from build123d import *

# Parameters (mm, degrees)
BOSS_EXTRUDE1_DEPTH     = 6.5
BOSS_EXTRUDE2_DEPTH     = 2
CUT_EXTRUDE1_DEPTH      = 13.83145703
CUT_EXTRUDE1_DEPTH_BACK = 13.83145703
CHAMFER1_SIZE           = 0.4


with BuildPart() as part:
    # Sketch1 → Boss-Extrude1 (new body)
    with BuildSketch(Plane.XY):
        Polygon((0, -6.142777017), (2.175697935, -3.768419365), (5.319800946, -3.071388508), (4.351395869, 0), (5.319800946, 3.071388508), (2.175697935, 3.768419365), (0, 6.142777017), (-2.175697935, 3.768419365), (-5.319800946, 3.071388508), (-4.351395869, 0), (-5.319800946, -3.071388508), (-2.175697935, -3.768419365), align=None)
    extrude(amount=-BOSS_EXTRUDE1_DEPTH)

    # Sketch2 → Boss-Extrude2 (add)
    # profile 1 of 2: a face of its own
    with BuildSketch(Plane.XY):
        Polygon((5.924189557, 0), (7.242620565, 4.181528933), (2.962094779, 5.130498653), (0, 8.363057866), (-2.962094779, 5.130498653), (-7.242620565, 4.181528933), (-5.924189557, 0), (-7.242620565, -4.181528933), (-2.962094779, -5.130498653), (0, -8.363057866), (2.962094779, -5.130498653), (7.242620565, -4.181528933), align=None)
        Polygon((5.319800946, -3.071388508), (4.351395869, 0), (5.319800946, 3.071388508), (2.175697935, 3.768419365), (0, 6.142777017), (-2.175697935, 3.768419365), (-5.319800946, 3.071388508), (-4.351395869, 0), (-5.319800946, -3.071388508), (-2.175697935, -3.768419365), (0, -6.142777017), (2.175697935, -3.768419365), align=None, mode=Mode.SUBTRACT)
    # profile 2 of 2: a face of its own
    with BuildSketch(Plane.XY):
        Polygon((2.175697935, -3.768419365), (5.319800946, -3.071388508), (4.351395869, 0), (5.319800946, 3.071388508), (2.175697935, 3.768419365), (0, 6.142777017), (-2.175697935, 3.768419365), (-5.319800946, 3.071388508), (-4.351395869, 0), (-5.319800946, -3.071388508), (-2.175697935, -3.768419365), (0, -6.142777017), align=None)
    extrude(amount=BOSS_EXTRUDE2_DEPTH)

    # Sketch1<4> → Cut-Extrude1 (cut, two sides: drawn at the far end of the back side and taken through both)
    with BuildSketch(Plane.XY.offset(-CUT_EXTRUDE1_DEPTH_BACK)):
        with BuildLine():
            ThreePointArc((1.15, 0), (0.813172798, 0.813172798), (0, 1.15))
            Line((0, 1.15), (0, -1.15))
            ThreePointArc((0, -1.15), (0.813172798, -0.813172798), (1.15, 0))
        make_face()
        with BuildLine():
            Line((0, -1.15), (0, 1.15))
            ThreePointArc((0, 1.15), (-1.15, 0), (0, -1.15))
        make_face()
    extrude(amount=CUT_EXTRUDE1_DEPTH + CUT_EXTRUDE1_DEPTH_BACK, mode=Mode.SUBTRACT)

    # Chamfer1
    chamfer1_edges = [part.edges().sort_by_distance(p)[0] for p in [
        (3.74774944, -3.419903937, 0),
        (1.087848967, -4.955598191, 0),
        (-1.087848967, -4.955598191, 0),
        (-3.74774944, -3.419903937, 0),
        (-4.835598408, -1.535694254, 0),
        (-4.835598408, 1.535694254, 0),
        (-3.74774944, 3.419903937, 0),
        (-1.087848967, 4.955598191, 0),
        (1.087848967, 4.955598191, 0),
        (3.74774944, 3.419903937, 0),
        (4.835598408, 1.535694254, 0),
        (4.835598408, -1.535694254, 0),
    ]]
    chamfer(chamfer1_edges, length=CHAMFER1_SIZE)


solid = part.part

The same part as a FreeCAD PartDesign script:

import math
import FreeCAD as App
import Part
import Sketcher
from FreeCAD import Vector
Q = App.Units.Quantity


def edges_at(feature, points):
    """Names of the edges that pass closest to the given points."""
    edges = feature.Shape.Edges
    near = lambda p: min(range(len(edges)), key=lambda i: edges[i].distToShape(Part.Vertex(*p))[0])
    return sorted({f"Edge{near(p) + 1}" for p in points})


def add_polygon(sketch, points):
    """Adds a closed chain of lines whose ends are joined by coincident constraints."""
    first, n = sketch.GeometryCount, len(points)
    for a, b in zip(points, points[1:] + points[:1]):
        sketch.addGeometry(Part.LineSegment(App.Vector(*a, 0), App.Vector(*b, 0)), False)
    for i in range(n):
        sketch.addConstraint(Sketcher.Constraint("Coincident", first + i, 2, first + (i + 1) % n, 1))

doc = App.newDocument("Part")
params = doc.addObject("Spreadsheet::Sheet", "Params")
for row, (alias, value) in enumerate([
    ("pad1_length", "6.5 mm"),
    ("pad2_length", "2 mm"),
    ("sketch3_radius", "1.15 mm"),
    ("chamfer_size", "0.4 mm"),
], start=1):
    params.set(f"A{row}", alias)
    params.set(f"B{row}", "=" + value)
    params.setAlias(f"B{row}", alias)

body = doc.addObject("PartDesign::Body", "Body")

sketch1 = body.newObject("Sketcher::SketchObject", "Sketch")
sketch1.AttachmentSupport = (doc.getObject("XY_Plane"), [""])
sketch1.MapMode = "FlatFace"
add_polygon(sketch1, [(0, -6.142777), (2.175698, -3.768419), (5.319801, -3.071389), (4.351396, 0), (5.319801, 3.071389), (2.175698, 3.768419), (0, 6.142777), (-2.175698, 3.768419), (-5.319801, 3.071389), (-4.351396, 0), (-5.319801, -3.071389), (-2.175698, -3.768419)])
sketch1.addConstraint(Sketcher.Constraint("Symmetric", 0, 2, 6, 2, -1, 1))
sketch1.addConstraint(Sketcher.Constraint("Symmetric", 1, 2, 7, 2, -1, 1))
sketch1.addConstraint(Sketcher.Constraint("Symmetric", 2, 2, 8, 2, -1, 1))
sketch1.addConstraint(Sketcher.Constraint("Symmetric", 3, 2, 9, 2, -1, 1))
sketch1.addConstraint(Sketcher.Constraint("Symmetric", 4, 2, 10, 2, -1, 1))
sketch1.addConstraint(Sketcher.Constraint("Symmetric", 5, 2, 11, 2, -1, 1))
sketch1.addConstraint(Sketcher.Constraint("Symmetric", 4, 2, 6, 2, -2))
sketch1.addConstraint(Sketcher.Constraint("Symmetric", 3, 2, 7, 2, -2))
sketch1.addConstraint(Sketcher.Constraint("PointOnObject", 2, 2, -1))
sketch1.addConstraint(Sketcher.Constraint("PointOnObject", 5, 2, -2))
sketch1.addConstraint(Sketcher.Constraint("Equal", 0, 1))
sketch1.addConstraint(Sketcher.Constraint("Equal", 1, 2))
sketch1.addConstraint(Sketcher.Constraint("Angle", 0, Q("47.5 deg")))
sketch1.addConstraint(Sketcher.Constraint("Angle", 1, Q("12.5 deg")))
sketch1.addConstraint(Sketcher.Constraint("Angle", 2, Q("107.5 deg")))
sketch1.addConstraint(Sketcher.Constraint("DistanceX", -1, 1, 1, 2, Q("5.319801 mm")))
pad1 = body.newObject("PartDesign::Pad", "Pad")
pad1.Profile = sketch1
pad1.setExpression("Length", "Params.pad1_length")
pad1.Reversed = True

sketch2 = body.newObject("Sketcher::SketchObject", "Sketch001")
sketch2.AttachmentSupport = (doc.getObject("XY_Plane"), [""])
sketch2.MapMode = "FlatFace"
add_polygon(sketch2, [(5.92419, 0), (7.242621, 4.181529), (2.962095, 5.130499), (0, 8.363058), (-2.962095, 5.130499), (-7.242621, 4.181529), (-5.92419, 0), (-7.242621, -4.181529), (-2.962095, -5.130499), (0, -8.363058), (2.962095, -5.130499), (7.242621, -4.181529)])
sketch2.addConstraint(Sketcher.Constraint("Symmetric", 0, 2, 6, 2, -1, 1))
sketch2.addConstraint(Sketcher.Constraint("Symmetric", 1, 2, 7, 2, -1, 1))
sketch2.addConstraint(Sketcher.Constraint("Symmetric", 2, 2, 8, 2, -1, 1))
sketch2.addConstraint(Sketcher.Constraint("Symmetric", 3, 2, 9, 2, -1, 1))
sketch2.addConstraint(Sketcher.Constraint("Symmetric", 4, 2, 10, 2, -1, 1))
sketch2.addConstraint(Sketcher.Constraint("Symmetric", 5, 2, 11, 2, -1, 1))
sketch2.addConstraint(Sketcher.Constraint("Symmetric", 1, 2, 3, 2, -2))
sketch2.addConstraint(Sketcher.Constraint("Symmetric", 0, 2, 4, 2, -2))
sketch2.addConstraint(Sketcher.Constraint("PointOnObject", 2, 2, -2))
sketch2.addConstraint(Sketcher.Constraint("PointOnObject", 5, 2, -1))
sketch2.addConstraint(Sketcher.Constraint("Equal", 0, 1))
sketch2.addConstraint(Sketcher.Constraint("Equal", 1, 2))
sketch2.addConstraint(Sketcher.Constraint("Angle", 0, Q("72.5 deg")))
sketch2.addConstraint(Sketcher.Constraint("Angle", 1, Q("167.5 deg")))
sketch2.addConstraint(Sketcher.Constraint("Angle", 2, Q("132.5 deg")))
sketch2.addConstraint(Sketcher.Constraint("DistanceY", -1, 1, 1, 2, Q("5.130499 mm")))
pad2 = body.newObject("PartDesign::Pad", "Pad001")
pad2.Profile = sketch2
pad2.setExpression("Length", "Params.pad2_length")

sketch3 = body.newObject("Sketcher::SketchObject", "Sketch002")
sketch3.AttachmentSupport = (doc.getObject("XY_Plane"), [""])
sketch3.MapMode = "FlatFace"
sketch3.addGeometry(Part.ArcOfCircle(Part.Circle(Vector(0, 0, 0), Vector(0, 0, 1), 1.15), math.radians(0), math.radians(90)), False)
sketch3.addGeometry(Part.ArcOfCircle(Part.Circle(Vector(0, 0, 0), Vector(0, 0, 1), 1.15), math.radians(90), math.radians(270)), False)
sketch3.addGeometry(Part.ArcOfCircle(Part.Circle(Vector(0, 0, 0), Vector(0, 0, 1), 1.15), math.radians(-90), math.radians(0)), False)
sketch3.addConstraint(Sketcher.Constraint("Tangent", 0, 2, 1, 1))
sketch3.addConstraint(Sketcher.Constraint("Tangent", 1, 2, 2, 1))
sketch3.addConstraint(Sketcher.Constraint("Tangent", 2, 2, 0, 1))
sketch3.addConstraint(Sketcher.Constraint("Coincident", 0, 3, -1, 1))
sketch3.addConstraint(Sketcher.Constraint("PointOnObject", 0, 2, -2))
sketch3.addConstraint(Sketcher.Constraint("PointOnObject", 1, 2, -2))
sketch3.addConstraint(Sketcher.Constraint("PointOnObject", 2, 2, -1))
sketch3.addConstraint(Sketcher.Constraint("Radius", 0, Q("1.15 mm")))
sketch3.setExpression("Constraints[7]", "Params.sketch3_radius")
pocket1 = body.newObject("PartDesign::Pocket", "Pocket")
pocket1.Profile = sketch3
pocket1.Type = "ThroughAll"
pocket1.Midplane = True
doc.recompute()

chamfer = body.newObject("PartDesign::Chamfer", "Chamfer")
chamfer.Base = (pocket1, edges_at(pocket1, [
    (3.748, -3.42, 0),
    (1.088, -4.956, 0),
    (-1.088, -4.956, 0),
    (-3.748, -3.42, 0),
    (-4.836, -1.536, 0),
    (-4.836, 1.536, 0),
    (-3.748, 3.42, 0),
    (-1.088, 4.956, 0),
    (1.088, 4.956, 0),
    (3.748, 3.42, 0),
    (4.836, 1.536, 0),
    (4.836, -1.536, 0),
]))
chamfer.setExpression("Size", "Params.chamfer_size")

doc.recompute()
